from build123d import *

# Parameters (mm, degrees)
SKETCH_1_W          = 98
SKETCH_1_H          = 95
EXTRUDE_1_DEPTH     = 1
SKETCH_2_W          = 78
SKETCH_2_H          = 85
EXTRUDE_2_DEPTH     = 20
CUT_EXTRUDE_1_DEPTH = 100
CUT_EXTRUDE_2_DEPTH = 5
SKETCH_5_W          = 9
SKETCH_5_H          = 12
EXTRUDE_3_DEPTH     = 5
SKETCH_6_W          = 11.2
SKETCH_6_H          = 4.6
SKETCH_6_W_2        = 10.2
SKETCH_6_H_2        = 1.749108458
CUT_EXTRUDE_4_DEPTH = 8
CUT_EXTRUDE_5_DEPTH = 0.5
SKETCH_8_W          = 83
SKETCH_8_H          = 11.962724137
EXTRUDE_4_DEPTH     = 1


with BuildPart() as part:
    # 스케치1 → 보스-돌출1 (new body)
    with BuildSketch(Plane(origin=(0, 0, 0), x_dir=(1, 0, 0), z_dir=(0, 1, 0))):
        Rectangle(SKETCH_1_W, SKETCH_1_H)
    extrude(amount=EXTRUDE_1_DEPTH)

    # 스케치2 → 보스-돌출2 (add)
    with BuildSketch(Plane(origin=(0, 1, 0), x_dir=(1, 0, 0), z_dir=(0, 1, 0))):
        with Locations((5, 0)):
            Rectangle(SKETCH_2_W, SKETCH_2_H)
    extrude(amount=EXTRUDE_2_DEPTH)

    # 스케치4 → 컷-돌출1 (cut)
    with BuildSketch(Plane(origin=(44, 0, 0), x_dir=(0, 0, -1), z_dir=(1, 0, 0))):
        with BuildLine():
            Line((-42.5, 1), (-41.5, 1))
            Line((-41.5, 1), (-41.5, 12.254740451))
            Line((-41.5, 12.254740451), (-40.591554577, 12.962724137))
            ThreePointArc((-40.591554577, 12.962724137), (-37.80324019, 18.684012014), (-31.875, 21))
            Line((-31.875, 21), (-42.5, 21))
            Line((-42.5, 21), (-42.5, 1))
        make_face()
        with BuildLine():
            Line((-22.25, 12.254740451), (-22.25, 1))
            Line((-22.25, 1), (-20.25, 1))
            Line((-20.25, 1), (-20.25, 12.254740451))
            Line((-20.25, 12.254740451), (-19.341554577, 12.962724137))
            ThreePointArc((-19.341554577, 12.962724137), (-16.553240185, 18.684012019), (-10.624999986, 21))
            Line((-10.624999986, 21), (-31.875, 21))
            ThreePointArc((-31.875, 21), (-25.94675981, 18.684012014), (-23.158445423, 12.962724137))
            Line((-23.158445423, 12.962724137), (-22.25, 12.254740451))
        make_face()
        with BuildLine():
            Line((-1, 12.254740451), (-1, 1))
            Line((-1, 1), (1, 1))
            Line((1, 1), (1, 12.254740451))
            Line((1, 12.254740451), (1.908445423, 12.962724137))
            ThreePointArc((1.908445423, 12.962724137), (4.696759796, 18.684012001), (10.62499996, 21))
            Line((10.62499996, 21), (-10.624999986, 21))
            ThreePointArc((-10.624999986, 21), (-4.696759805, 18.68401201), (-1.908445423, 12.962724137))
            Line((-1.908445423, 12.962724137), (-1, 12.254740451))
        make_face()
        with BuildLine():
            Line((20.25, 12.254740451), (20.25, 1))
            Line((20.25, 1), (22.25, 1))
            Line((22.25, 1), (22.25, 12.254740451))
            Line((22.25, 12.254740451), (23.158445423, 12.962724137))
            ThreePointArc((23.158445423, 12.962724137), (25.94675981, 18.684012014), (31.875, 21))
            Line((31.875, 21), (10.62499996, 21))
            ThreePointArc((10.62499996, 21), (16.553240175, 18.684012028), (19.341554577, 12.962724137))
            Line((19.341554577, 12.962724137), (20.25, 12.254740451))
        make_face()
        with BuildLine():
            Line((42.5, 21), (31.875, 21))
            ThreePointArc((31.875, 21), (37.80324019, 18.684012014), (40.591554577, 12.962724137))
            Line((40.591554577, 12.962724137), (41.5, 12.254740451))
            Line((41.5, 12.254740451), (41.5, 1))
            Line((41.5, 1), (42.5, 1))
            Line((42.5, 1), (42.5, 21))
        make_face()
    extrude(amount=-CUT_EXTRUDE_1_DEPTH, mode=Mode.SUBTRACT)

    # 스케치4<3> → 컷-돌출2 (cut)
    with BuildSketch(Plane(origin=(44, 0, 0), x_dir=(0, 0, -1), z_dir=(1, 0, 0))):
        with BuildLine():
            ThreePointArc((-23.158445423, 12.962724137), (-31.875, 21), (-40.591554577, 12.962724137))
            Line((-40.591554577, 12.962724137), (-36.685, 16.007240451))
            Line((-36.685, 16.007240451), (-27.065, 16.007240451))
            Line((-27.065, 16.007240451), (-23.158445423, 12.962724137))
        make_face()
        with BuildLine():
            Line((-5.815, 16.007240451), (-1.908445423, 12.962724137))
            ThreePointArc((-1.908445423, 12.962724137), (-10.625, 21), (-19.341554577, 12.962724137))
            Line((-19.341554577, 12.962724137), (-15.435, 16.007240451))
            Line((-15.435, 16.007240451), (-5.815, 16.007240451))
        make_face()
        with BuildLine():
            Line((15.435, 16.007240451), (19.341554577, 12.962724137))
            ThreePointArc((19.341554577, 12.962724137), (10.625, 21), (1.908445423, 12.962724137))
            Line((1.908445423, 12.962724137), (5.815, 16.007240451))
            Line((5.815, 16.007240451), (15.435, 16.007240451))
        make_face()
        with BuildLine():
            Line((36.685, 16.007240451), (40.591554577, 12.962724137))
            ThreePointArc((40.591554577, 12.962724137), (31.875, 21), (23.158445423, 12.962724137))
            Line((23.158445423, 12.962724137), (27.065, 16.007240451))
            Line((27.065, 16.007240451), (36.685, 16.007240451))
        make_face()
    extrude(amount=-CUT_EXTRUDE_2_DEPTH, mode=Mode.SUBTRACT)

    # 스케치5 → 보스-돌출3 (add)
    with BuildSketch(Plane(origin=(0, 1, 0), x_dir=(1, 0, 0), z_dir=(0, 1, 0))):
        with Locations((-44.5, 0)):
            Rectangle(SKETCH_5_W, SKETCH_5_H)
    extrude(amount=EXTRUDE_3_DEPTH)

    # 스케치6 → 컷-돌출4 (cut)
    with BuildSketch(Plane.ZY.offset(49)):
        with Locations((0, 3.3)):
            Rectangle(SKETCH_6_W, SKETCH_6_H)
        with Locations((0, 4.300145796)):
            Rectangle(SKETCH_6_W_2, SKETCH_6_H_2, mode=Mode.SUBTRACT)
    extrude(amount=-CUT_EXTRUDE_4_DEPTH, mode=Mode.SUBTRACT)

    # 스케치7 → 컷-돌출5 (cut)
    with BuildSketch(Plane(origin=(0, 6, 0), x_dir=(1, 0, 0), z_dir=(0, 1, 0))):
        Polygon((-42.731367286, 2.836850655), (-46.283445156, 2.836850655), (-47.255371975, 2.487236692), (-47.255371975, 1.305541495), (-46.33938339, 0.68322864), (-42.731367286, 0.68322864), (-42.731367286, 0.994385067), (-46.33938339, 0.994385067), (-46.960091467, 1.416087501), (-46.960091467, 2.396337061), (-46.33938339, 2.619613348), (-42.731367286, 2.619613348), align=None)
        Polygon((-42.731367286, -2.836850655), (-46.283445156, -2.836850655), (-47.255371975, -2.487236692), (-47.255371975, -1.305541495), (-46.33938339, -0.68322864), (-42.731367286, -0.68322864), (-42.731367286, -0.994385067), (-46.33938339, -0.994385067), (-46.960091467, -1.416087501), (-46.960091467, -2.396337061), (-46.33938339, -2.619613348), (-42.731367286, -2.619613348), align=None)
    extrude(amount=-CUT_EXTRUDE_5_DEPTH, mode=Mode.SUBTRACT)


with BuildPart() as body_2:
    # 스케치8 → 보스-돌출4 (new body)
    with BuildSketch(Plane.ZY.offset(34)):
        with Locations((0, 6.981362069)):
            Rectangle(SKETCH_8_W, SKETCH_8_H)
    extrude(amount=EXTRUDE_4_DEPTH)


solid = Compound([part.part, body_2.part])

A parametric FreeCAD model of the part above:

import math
import FreeCAD as App
import Part
import Sketcher
from FreeCAD import Vector
Q = App.Units.Quantity

doc = App.newDocument("Part")
body = doc.addObject("PartDesign::Body", "Body")

# Sketch on XZ plane
sketch1 = body.newObject("Sketcher::SketchObject", "Sketch")
sketch1.AttachmentSupport = (doc.getObject("XZ_Plane"), [""])
sketch1.MapMode = "FlatFace"
sketch1.addGeometry([
    Part.LineSegment(Vector(-49, -48, 0), Vector(-49, 48, 0)),
    Part.LineSegment(Vector(-49, 48, 0), Vector(49, 48, 0)),
    Part.LineSegment(Vector(49, 48, 0), Vector(49, -48, 0)),
    Part.LineSegment(Vector(49, -48, 0), Vector(-49, -48, 0)),
], False)
sketch1.addConstraint([
    Sketcher.Constraint("Coincident", 0, 2, 1, 1),
    Sketcher.Constraint("Coincident", 1, 2, 2, 1),
    Sketcher.Constraint("Coincident", 2, 2, 3, 1),
    Sketcher.Constraint("Coincident", 3, 2, 0, 1),
    Sketcher.Constraint("Vertical", 0),
    Sketcher.Constraint("Horizontal", 1),
    Sketcher.Constraint("Vertical", 2),
    Sketcher.Constraint("Horizontal", 3),
    Sketcher.Constraint("Symmetric", 0, 2, 2, 2, -1, 1),
    Sketcher.Constraint("DistanceX", 1, 1, 1, 2, Q("98 mm")),
    Sketcher.Constraint("DistanceY", 0, 1, 0, 2, Q("95 mm")),
])
pad1 = body.newObject("PartDesign::Pad", "Pad")
pad1.Profile = sketch1
pad1.Length = 1
pad1.Reversed = True

# Sketch on XZ plane
sketch2 = body.newObject("Sketcher::SketchObject", "Sketch001")
sketch2.AttachmentSupport = (doc.getObject("XZ_Plane"), [""])
sketch2.MapMode = "FlatFace"
sketch2.AttachmentOffset = App.Placement(Vector(0, 0, -1), App.Rotation())
sketch2.addGeometry([
    Part.LineSegment(Vector(-34, -42, 0), Vector(-34, 42, 0)),
    Part.LineSegment(Vector(-34, 42, 0), Vector(44, 42, 0)),
    Part.LineSegment(Vector(44, 42, 0), Vector(44, -42, 0)),
    Part.LineSegment(Vector(44, -42, 0), Vector(-34, -42, 0)),
], False)
sketch2.addConstraint([
    Sketcher.Constraint("Coincident", 0, 2, 1, 1),
    Sketcher.Constraint("Coincident", 1, 2, 2, 1),
    Sketcher.Constraint("Coincident", 2, 2, 3, 1),
    Sketcher.Constraint("Coincident", 3, 2, 0, 1),
    Sketcher.Constraint("Vertical", 0),
    Sketcher.Constraint("Horizontal", 1),
    Sketcher.Constraint("Vertical", 2),
    Sketcher.Constraint("Horizontal", 3),
    Sketcher.Constraint("DistanceX", 1, 1, 1, 2, Q("78 mm")),
    Sketcher.Constraint("DistanceY", 0, 1, 0, 2, Q("85 mm")),
    Sketcher.Constraint("DistanceX", 0, 2, -1, 1, Q("34 mm")),
    Sketcher.Constraint("DistanceY", -1, 1, 0, 2, Q("42.5 mm")),
])
pad2 = body.newObject("PartDesign::Pad", "Pad001")
pad2.Profile = sketch2
pad2.Length = 20
pad2.Reversed = True

# Sketch on YZ plane
sketch3 = body.newObject("Sketcher::SketchObject", "Sketch002")
sketch3.AttachmentSupport = (doc.getObject("YZ_Plane"), [""])
sketch3.MapMode = "FlatFace"
sketch3.AttachmentOffset = App.Placement(Vector(0, 0, 44), App.Rotation())
sketch3.addGeometry([
    Part.LineSegment(Vector(1, 42.5, 0), Vector(1, 41.5, 0)),  # 0
    Part.LineSegment(Vector(1, 41.5, 0), Vector(12.3, 41.5, 0)),  # 1
    Part.LineSegment(Vector(12.3, 41.5, 0), Vector(13, 40.6, 0)),  # 2
    Part.ArcOfCircle(Part.Circle(Vector(12.3, 31.9, 0), Vector(0, 0, 1), 8.7), math.radians(0), math.radians(85)),  # 3
    Part.LineSegment(Vector(21, 31.9, 0), Vector(21, 42.5, 0)),  # 4
    Part.LineSegment(Vector(21, 42.5, 0), Vector(1, 42.5, 0)),  # 5
    Part.LineSegment(Vector(12.3, 22.2, 0), Vector(1, 22.2, 0)),  # 6
    Part.LineSegment(Vector(1, 22.2, 0), Vector(1, 20.2, 0)),  # 7
    Part.LineSegment(Vector(1, 20.2, 0), Vector(12.3, 20.2, 0)),  # 8
    Part.LineSegment(Vector(12.3, 20.2, 0), Vector(13, 19.3, 0)),  # 9
    Part.ArcOfCircle(Part.Circle(Vector(12.3, 10.6, 0), Vector(0, 0, 1), 8.7), math.radians(0), math.radians(85)),  # 10
    Part.LineSegment(Vector(21, 10.6, 0), Vector(21, 31.9, 0)),  # 11
    Part.ArcOfCircle(Part.Circle(Vector(12.3, 31.9, 0), Vector(0, 0, 1), 8.7), math.radians(-85), math.radians(0)),  # 12
    Part.LineSegment(Vector(13, 23.2, 0), Vector(12.3, 22.2, 0)),  # 13
    Part.LineSegment(Vector(12.3, 1, 0), Vector(1, 1, 0)),  # 14
    Part.LineSegment(Vector(1, 1, 0), Vector(1, -1, 0)),  # 15
    Part.LineSegment(Vector(1, -1, 0), Vector(12.3, -1, 0)),  # 16
    Part.LineSegment(Vector(12.3, -1, 0), Vector(13, -1.9, 0)),  # 17
    Part.ArcOfCircle(Part.Circle(Vector(12.3, -10.6, 0), Vector(0, 0, 1), 8.7), math.radians(0), math.radians(85)),  # 18
    Part.LineSegment(Vector(21, -10.6, 0), Vector(21, 10.6, 0)),  # 19
    Part.ArcOfCircle(Part.Circle(Vector(12.3, 10.6, 0), Vector(0, 0, 1), 8.7), math.radians(-85), math.radians(0)),  # 20
    Part.LineSegment(Vector(13, 1.9, 0), Vector(12.3, 1, 0)),  # 21
    Part.LineSegment(Vector(12.3, -20.2, 0), Vector(1, -20.2, 0)),  # 22
    Part.LineSegment(Vector(1, -20.2, 0), Vector(1, -22.2, 0)),  # 23
    Part.LineSegment(Vector(1, -22.2, 0), Vector(12.3, -22.2, 0)),  # 24
    Part.LineSegment(Vector(12.3, -22.2, 0), Vector(13, -23.2, 0)),  # 25
    Part.ArcOfCircle(Part.Circle(Vector(12.3, -31.9, 0), Vector(0, 0, 1), 8.7), math.radians(0), math.radians(85)),  # 26
    Part.LineSegment(Vector(21, -31.9, 0), Vector(21, -10.6, 0)),  # 27
    Part.ArcOfCircle(Part.Circle(Vector(12.3, -10.6, 0), Vector(0, 0, 1), 8.7), math.radians(-85), math.radians(0)),  # 28
    Part.LineSegment(Vector(13, -19.3, 0), Vector(12.3, -20.2, 0)),  # 29
    Part.LineSegment(Vector(21, -42.5, 0), Vector(21, -31.9, 0)),  # 30
    Part.ArcOfCircle(Part.Circle(Vector(12.3, -31.9, 0), Vector(0, 0, 1), 8.7), math.radians(-85), math.radians(0)),  # 31
    Part.LineSegment(Vector(13, -40.6, 0), Vector(12.3, -41.5, 0)),  # 32
    Part.LineSegment(Vector(12.3, -41.5, 0), Vector(1, -41.5, 0)),  # 33
    Part.LineSegment(Vector(1, -41.5, 0), Vector(1, -42.5, 0)),  # 34
    Part.LineSegment(Vector(1, -42.5, 0), Vector(21, -42.5, 0)),  # 35
], False)
sketch3.addConstraint([
    Sketcher.Constraint("Coincident", 0, 2, 1, 1),
    Sketcher.Constraint("Coincident", 1, 2, 2, 1),
    Sketcher.Constraint("Coincident", 2, 2, 3, 2),
    Sketcher.Constraint("Tangent", 3, 1, 4, 1),
    Sketcher.Constraint("Coincident", 4, 2, 5, 1),
    Sketcher.Constraint("Coincident", 5, 2, 0, 1),
    Sketcher.Constraint("Coincident", 6, 2, 7, 1),
    Sketcher.Constraint("Coincident", 7, 2, 8, 1),
    Sketcher.Constraint("Coincident", 8, 2, 9, 1),
    Sketcher.Constraint("Coincident", 9, 2, 10, 2),
    Sketcher.Constraint("Tangent", 10, 1, 11, 1),
    Sketcher.Constraint("Tangent", 11, 2, 12, 2),
    Sketcher.Constraint("Coincident", 12, 1, 13, 1),
    Sketcher.Constraint("Coincident", 13, 2, 6, 1),
    Sketcher.Constraint("Coincident", 14, 2, 15, 1),
    Sketcher.Constraint("Coincident", 15, 2, 16, 1),
    Sketcher.Constraint("Coincident", 16, 2, 17, 1),
    Sketcher.Constraint("Coincident", 17, 2, 18, 2),
    Sketcher.Constraint("Tangent", 18, 1, 19, 1),
    Sketcher.Constraint("Tangent", 19, 2, 20, 2),
    Sketcher.Constraint("Coincident", 20, 1, 21, 1),
    Sketcher.Constraint("Coincident", 21, 2, 14, 1),
    Sketcher.Constraint("Coincident", 22, 2, 23, 1),
    Sketcher.Constraint("Coincident", 23, 2, 24, 1),
    Sketcher.Constraint("Coincident", 24, 2, 25, 1),
    Sketcher.Constraint("Coincident", 25, 2, 26, 2),
    Sketcher.Constraint("Tangent", 26, 1, 27, 1),
    Sketcher.Constraint("Tangent", 27, 2, 28, 2),
    Sketcher.Constraint("Coincident", 28, 1, 29, 1),
    Sketcher.Constraint("Coincident", 29, 2, 22, 1),
    Sketcher.Constraint("Tangent", 30, 2, 31, 2),
    Sketcher.Constraint("Coincident", 31, 1, 32, 1),
    Sketcher.Constraint("Coincident", 32, 2, 33, 1),
    Sketcher.Constraint("Coincident", 33, 2, 34, 1),
    Sketcher.Constraint("Coincident", 34, 2, 35, 1),
    Sketcher.Constraint("Coincident", 35, 2, 30, 1),
    Sketcher.Constraint("Vertical", 0),
    Sketcher.Constraint("Horizontal", 1),
    Sketcher.Constraint("Vertical", 4),
    Sketcher.Constraint("Horizontal", 5),
    Sketcher.Constraint("Horizontal", 6),
    Sketcher.Constraint("Vertical", 7),
    Sketcher.Constraint("Horizontal", 8),
    Sketcher.Constraint("Vertical", 11),
    Sketcher.Constraint("Horizontal", 14),
    Sketcher.Constraint("Vertical", 15),
    Sketcher.Constraint("Horizontal", 16),
    Sketcher.Constraint("Vertical", 19),
    Sketcher.Constraint("Horizontal", 22),
    Sketcher.Constraint("Vertical", 23),
    Sketcher.Constraint("Horizontal", 24),
    Sketcher.Constraint("Vertical", 27),
    Sketcher.Constraint("Vertical", 30),
    Sketcher.Constraint("Horizontal", 33),
    Sketcher.Constraint("Vertical", 34),
    Sketcher.Constraint("Horizontal", 35),
    Sketcher.Constraint("Coincident", 12, 3, 3, 3),
    Sketcher.Constraint("Coincident", 20, 3, 10, 3),
    Sketcher.Constraint("Coincident", 28, 3, 18, 3),
    Sketcher.Constraint("Coincident", 31, 3, 26, 3),
    Sketcher.Constraint("Equal", 3, 10),
    Sketcher.Constraint("Equal", 10, 12),
    Sketcher.Constraint("Equal", 12, 18),
    Sketcher.Constraint("Equal", 18, 20),
    Sketcher.Constraint("Equal", 20, 26),
    Sketcher.Constraint("Equal", 26, 28),
    Sketcher.Constraint("Equal", 28, 31),
    Sketcher.Constraint("Symmetric", 17, 2, 20, 1, -1),
    Sketcher.Constraint("Symmetric", 16, 2, 21, 2, -1),
    Sketcher.Constraint("Symmetric", 7, 2, 22, 2, -1),
    Sketcher.Constraint("Symmetric", 13, 2, 24, 2, -1),
    Sketcher.Constraint("Symmetric", 12, 1, 25, 2, -1),
    Sketcher.Constraint("Symmetric", 1, 2, 32, 2, -1),
    Sketcher.Constraint("Symmetric", 5, 2, 34, 2, -1),
    Sketcher.Constraint("Parallel", 2, 9),
    Sketcher.Constraint("Parallel", 9, 17),
    Sketcher.Constraint("Parallel", 13, 21),
    Sketcher.Constraint("Parallel", 21, 29),
    Sketcher.Constraint("Parallel", 29, 32),
    Sketcher.Constraint("Vertical", 31, 3, 1, 2),
    Sketcher.Constraint("Vertical", 5, 2, 6, 2),
    Sketcher.Constraint("Vertical", 1, 2, 8, 2),
    Sketcher.Constraint("Vertical", 2, 2, 9, 2),
    Sketcher.Constraint("Vertical", 9, 2, 12, 1),
    Sketcher.Constraint("Vertical", 8, 2, 13, 2),
    Sketcher.Constraint("Vertical", 7, 2, 14, 2),
    Sketcher.Constraint("Vertical", 13, 2, 16, 2),
    Sketcher.Constraint("Vertical", 12, 1, 17, 2),
    Sketcher.Constraint("Vertical", 25, 2, 28, 1),
    Sketcher.Constraint("Equal", 7, 15),
    Sketcher.Constraint("DistanceX", 5, 2, 5, 1, Q("20 mm")),
    Sketcher.Constraint("DistanceY", 0, 2, 0, 1, Q("1 mm")),
    Sketcher.Constraint("DistanceY", 7, 2, 7, 1, Q("2 mm")),
    Sketcher.Constraint("DistanceX", -1, 1, 0, 2, Q("1 mm")),
    Sketcher.Constraint("DistanceY", 11, 1, 11, 2, Q("21.25 mm")),
    Sketcher.Constraint("Radius", 3, Q("8.74526 mm")),
    Sketcher.Constraint("DistanceY", 9, 2, 12, 1, Q("3.816891 mm")),
])
pocket1 = body.newObject("PartDesign::Pocket", "Pocket")
pocket1.Profile = sketch3
pocket1.Length = 100

# Sketch on YZ plane
sketch4 = body.newObject("Sketcher::SketchObject", "Sketch003")
sketch4.AttachmentSupport = (doc.getObject("YZ_Plane"), [""])
sketch4.MapMode = "FlatFace"
sketch4.AttachmentOffset = App.Placement(Vector(0, 0, 44), App.Rotation())
sketch4.addGeometry([
    Part.ArcOfCircle(Part.Circle(Vector(12.3, 31.9, 0), Vector(0, 0, 1), 8.7), math.radians(-85), math.radians(85)),  # 0
    Part.LineSegment(Vector(13, 40.6, 0), Vector(16, 36.7, 0)),  # 1
    Part.LineSegment(Vector(16, 36.7, 0), Vector(16, 27.1, 0)),  # 2
    Part.LineSegment(Vector(16, 27.1, 0), Vector(13, 23.2, 0)),  # 3
    Part.LineSegment(Vector(16, 5.8, 0), Vector(13, 1.9, 0)),  # 4
    Part.ArcOfCircle(Part.Circle(Vector(12.3, 10.6, 0), Vector(0, 0, 1), 8.7), math.radians(-85), math.radians(85)),  # 5
    Part.LineSegment(Vector(13, 19.3, 0), Vector(16, 15.4, 0)),  # 6
    Part.LineSegment(Vector(16, 15.4, 0), Vector(16, 5.8, 0)),  # 7
    Part.LineSegment(Vector(16, -15.4, 0), Vector(13, -19.3, 0)),  # 8
    Part.ArcOfCircle(Part.Circle(Vector(12.3, -10.6, 0), Vector(0, 0, 1), 8.7), math.radians(-85), math.radians(85)),  # 9
    Part.LineSegment(Vector(13, -1.9, 0), Vector(16, -5.8, 0)),  # 10
    Part.LineSegment(Vector(16, -5.8, 0), Vector(16, -15.4, 0)),  # 11
    Part.LineSegment(Vector(16, -36.7, 0), Vector(13, -40.6, 0)),  # 12
    Part.ArcOfCircle(Part.Circle(Vector(12.3, -31.9, 0), Vector(0, 0, 1), 8.7), math.radians(-85), math.radians(85)),  # 13
    Part.LineSegment(Vector(13, -23.2, 0), Vector(16, -27.1, 0)),  # 14
    Part.LineSegment(Vector(16, -27.1, 0), Vector(16, -36.7, 0)),  # 15
], False)
sketch4.addConstraint([
    Sketcher.Constraint("Coincident", 0, 2, 1, 1),
    Sketcher.Constraint("Coincident", 1, 2, 2, 1),
    Sketcher.Constraint("Coincident", 2, 2, 3, 1),
    Sketcher.Constraint("Coincident", 3, 2, 0, 1),
    Sketcher.Constraint("Coincident", 4, 2, 5, 1),
    Sketcher.Constraint("Coincident", 5, 2, 6, 1),
    Sketcher.Constraint("Coincident", 6, 2, 7, 1),
    Sketcher.Constraint("Coincident", 7, 2, 4, 1),
    Sketcher.Constraint("Coincident", 8, 2, 9, 1),
    Sketcher.Constraint("Coincident", 9, 2, 10, 1),
    Sketcher.Constraint("Coincident", 10, 2, 11, 1),
    Sketcher.Constraint("Coincident", 11, 2, 8, 1),
    Sketcher.Constraint("Coincident", 12, 2, 13, 1),
    Sketcher.Constraint("Coincident", 13, 2, 14, 1),
    Sketcher.Constraint("Coincident", 14, 2, 15, 1),
    Sketcher.Constraint("Coincident", 15, 2, 12, 1),
    Sketcher.Constraint("Vertical", 2),
    Sketcher.Constraint("Vertical", 7),
    Sketcher.Constraint("Vertical", 11),
    Sketcher.Constraint("Vertical", 15),
    Sketcher.Constraint("Equal", 0, 5),
    Sketcher.Constraint("Equal", 5, 9),
    Sketcher.Constraint("Equal", 9, 13),
    Sketcher.Constraint("Symmetric", 5, 3, 9, 3, -1),
    Sketcher.Constraint("Symmetric", 0, 3, 13, 3, -1),
    Sketcher.Constraint("Symmetric", 7, 2, 10, 2, -1),
    Sketcher.Constraint("Symmetric", 2, 2, 14, 2, -1),
    Sketcher.Constraint("Parallel", 3, 4),
    Sketcher.Constraint("Parallel", 1, 6),
    Sketcher.Constraint("Parallel", 4, 8),
    Sketcher.Constraint("Parallel", 6, 10),
    Sketcher.Constraint("Parallel", 8, 12),
    Sketcher.Constraint("Parallel", 10, 14),
    Sketcher.Constraint("Vertical", 0, 3, 5, 3),
    Sketcher.Constraint("Vertical", 0, 2, 3, 2),
    Sketcher.Constraint("Vertical", 3, 2, 4, 2),
    Sketcher.Constraint("Vertical", 4, 2, 5, 2),
    Sketcher.Constraint("Vertical", 2, 2, 6, 2),
    Sketcher.Constraint("Vertical", 5, 2, 8, 2),
    Sketcher.Constraint("Vertical", 8, 2, 9, 2),
    Sketcher.Constraint("Vertical", 9, 2, 12, 2),
    Sketcher.Constraint("DistanceY", 2, 2, 2, 1, Q("9.62 mm")),
    Sketcher.Constraint("DistanceY", 9, 3, 0, 3, Q("42.5 mm")),
    Sketcher.Constraint("Radius", 0, Q("8.74526 mm")),
    Sketcher.Constraint("DistanceY", 5, 3, 0, 3, Q("21.25 mm")),
    Sketcher.Constraint("DistanceX", 0, 3, 1, 2, Q("3.7525 mm")),
    Sketcher.Constraint("DistanceX", -1, 1, 0, 3, Q("12.25474 mm")),
    Sketcher.Constraint("DistanceY", 3, 2, 0, 2, Q("17.433109 mm")),
])
pocket2 = body.newObject("PartDesign::Pocket", "Pocket001")
pocket2.Profile = sketch4
pocket2.Length = 5

# Sketch on XZ plane
sketch5 = body.newObject("Sketcher::SketchObject", "Sketch004")
sketch5.AttachmentSupport = (doc.getObject("XZ_Plane"), [""])
sketch5.MapMode = "FlatFace"
sketch5.AttachmentOffset = App.Placement(Vector(0, 0, -1), App.Rotation())
sketch5.addGeometry([
    Part.LineSegment(Vector(-49, -6, 0), Vector(-49, 6, 0)),
    Part.LineSegment(Vector(-49, 6, 0), Vector(-40, 6, 0)),
    Part.LineSegment(Vector(-40, 6, 0), Vector(-40, -6, 0)),
    Part.LineSegment(Vector(-40, -6, 0), Vector(-49, -6, 0)),
], False)
sketch5.addConstraint([
    Sketcher.Constraint("Coincident", 0, 2, 1, 1),
    Sketcher.Constraint("Coincident", 1, 2, 2, 1),
    Sketcher.Constraint("Coincident", 2, 2, 3, 1),
    Sketcher.Constraint("Coincident", 3, 2, 0, 1),
    Sketcher.Constraint("Vertical", 0),
    Sketcher.Constraint("Horizontal", 1),
    Sketcher.Constraint("Vertical", 2),
    Sketcher.Constraint("Horizontal", 3),
    Sketcher.Constraint("DistanceX", 1, 1, 1, 2, Q("9 mm")),
    Sketcher.Constraint("DistanceY", 0, 1, 0, 2, Q("12 mm")),
    Sketcher.Constraint("DistanceX", 0, 2, -1, 1, Q("49 mm")),
    Sketcher.Constraint("DistanceY", -1, 1, 0, 2, Q("6 mm")),
])
pad3 = body.newObject("PartDesign::Pad", "Pad002")
pad3.Profile = sketch5
pad3.Length = 5
pad3.Reversed = True

# Sketch on YZ plane
sketch6 = body.newObject("Sketcher::SketchObject", "Sketch005")
sketch6.AttachmentSupport = (doc.getObject("YZ_Plane"), [""])
sketch6.MapMode = "FlatFace"
sketch6.AttachmentOffset = App.Placement(Vector(0, 0, -49), App.Rotation())
sketch6.addGeometry([
    Part.LineSegment(Vector(5.6, -5.6, 0), Vector(1, -5.6, 0)),  # 0
    Part.LineSegment(Vector(1, -5.6, 0), Vector(1, 5.6, 0)),  # 1
    Part.LineSegment(Vector(1, 5.6, 0), Vector(5.6, 5.6, 0)),  # 2
    Part.LineSegment(Vector(5.6, 5.6, 0), Vector(5.6, -5.6, 0)),  # 3
    Part.LineSegment(Vector(3.4, 5.1, 0), Vector(3.4, -5.1, 0)),  # 4
    Part.LineSegment(Vector(3.4, -5.1, 0), Vector(5.2, -5.1, 0)),  # 5
    Part.LineSegment(Vector(5.2, -5.1, 0), Vector(5.2, 5.1, 0)),  # 6
    Part.LineSegment(Vector(5.2, 5.1, 0), Vector(3.4, 5.1, 0)),  # 7
], False)
sketch6.addConstraint([
    Sketcher.Constraint("Coincident", 0, 2, 1, 1),
    Sketcher.Constraint("Coincident", 1, 2, 2, 1),
    Sketcher.Constraint("Coincident", 2, 2, 3, 1),
    Sketcher.Constraint("Coincident", 3, 2, 0, 1),
    Sketcher.Constraint("Coincident", 4, 2, 5, 1),
    Sketcher.Constraint("Coincident", 5, 2, 6, 1),
    Sketcher.Constraint("Coincident", 6, 2, 7, 1),
    Sketcher.Constraint("Coincident", 7, 2, 4, 1),
    Sketcher.Constraint("Horizontal", 0),
    Sketcher.Constraint("Vertical", 1),
    Sketcher.Constraint("Horizontal", 2),
    Sketcher.Constraint("Vertical", 3),
    Sketcher.Constraint("Vertical", 4),
    Sketcher.Constraint("Horizontal", 5),
    Sketcher.Constraint("Vertical", 6),
    Sketcher.Constraint("Horizontal", 7),
    Sketcher.Constraint("DistanceX", 0, 2, 0, 1, Q("4.6 mm")),
    Sketcher.Constraint("DistanceY", 1, 1, 1, 2, Q("11.2 mm")),
    Sketcher.Constraint("DistanceY", 4, 2, 4, 1, Q("10.2 mm")),
    Sketcher.Constraint("DistanceX", -1, 1, 0, 2, Q("1 mm")),
    Sketcher.Constraint("DistanceY", 0, 2, -1, 1, Q("5.6 mm")),
    Sketcher.Constraint("DistanceY", 4, 2, -1, 1, Q("5.1 mm")),
    Sketcher.Constraint("DistanceX", 5, 1, 5, 2, Q("1.749108 mm")),
    Sketcher.Constraint("DistanceX", -1, 1, 5, 2, Q("5.1747 mm")),
])
pocket3 = body.newObject("PartDesign::Pocket", "Pocket002")
pocket3.Profile = sketch6
pocket3.Length = 8
pocket3.Reversed = True

# Sketch on XZ plane
sketch7 = body.newObject("Sketcher::SketchObject", "Sketch006")
sketch7.AttachmentSupport = (doc.getObject("XZ_Plane"), [""])
sketch7.MapMode = "FlatFace"
sketch7.AttachmentOffset = App.Placement(Vector(0, 0, -6), App.Rotation())
sketch7.addGeometry([
    Part.LineSegment(Vector(-42.73, -2.84, 0), Vector(-46.28, -2.84, 0)),  # 0
    Part.LineSegment(Vector(-46.28, -2.84, 0), Vector(-47.26, -2.49, 0)),  # 1
    Part.LineSegment(Vector(-47.26, -2.49, 0), Vector(-47.26, -1.31, 0)),  # 2
    Part.LineSegment(Vector(-47.26, -1.31, 0), Vector(-46.34, -0.68, 0)),  # 3
    Part.LineSegment(Vector(-46.34, -0.68, 0), Vector(-42.73, -0.68, 0)),  # 4
    Part.LineSegment(Vector(-42.73, -0.68, 0), Vector(-42.73, -0.99, 0)),  # 5
    Part.LineSegment(Vector(-42.73, -0.99, 0), Vector(-46.34, -0.99, 0)),  # 6
    Part.LineSegment(Vector(-46.34, -0.99, 0), Vector(-46.96, -1.42, 0)),  # 7
    Part.LineSegment(Vector(-46.96, -1.42, 0), Vector(-46.96, -2.4, 0)),  # 8
    Part.LineSegment(Vector(-46.96, -2.4, 0), Vector(-46.34, -2.62, 0)),  # 9
    Part.LineSegment(Vector(-46.34, -2.62, 0), Vector(-42.73, -2.62, 0)),  # 10
    Part.LineSegment(Vector(-42.73, -2.62, 0), Vector(-42.73, -2.84, 0)),  # 11
    Part.LineSegment(Vector(-46.28, 2.84, 0), Vector(-42.73, 2.84, 0)),  # 12
    Part.LineSegment(Vector(-42.73, 2.84, 0), Vector(-42.73, 2.62, 0)),  # 13
    Part.LineSegment(Vector(-42.73, 2.62, 0), Vector(-46.34, 2.62, 0)),  # 14
    Part.LineSegment(Vector(-46.34, 2.62, 0), Vector(-46.96, 2.4, 0)),  # 15
    Part.LineSegment(Vector(-46.96, 2.4, 0), Vector(-46.96, 1.42, 0)),  # 16
    Part.LineSegment(Vector(-46.96, 1.42, 0), Vector(-46.34, 0.99, 0)),  # 17
    Part.LineSegment(Vector(-46.34, 0.99, 0), Vector(-42.73, 0.99, 0)),  # 18
    Part.LineSegment(Vector(-42.73, 0.99, 0), Vector(-42.73, 0.68, 0)),  # 19
    Part.LineSegment(Vector(-42.73, 0.68, 0), Vector(-46.34, 0.68, 0)),  # 20
    Part.LineSegment(Vector(-46.34, 0.68, 0), Vector(-47.26, 1.31, 0)),  # 21
    Part.LineSegment(Vector(-47.26, 1.31, 0), Vector(-47.26, 2.49, 0)),  # 22
    Part.LineSegment(Vector(-47.26, 2.49, 0), Vector(-46.28, 2.84, 0)),  # 23
], False)
sketch7.addConstraint([
    Sketcher.Constraint("Coincident", 0, 2, 1, 1),
    Sketcher.Constraint("Coincident", 1, 2, 2, 1),
    Sketcher.Constraint("Coincident", 2, 2, 3, 1),
    Sketcher.Constraint("Coincident", 3, 2, 4, 1),
    Sketcher.Constraint("Coincident", 4, 2, 5, 1),
    Sketcher.Constraint("Coincident", 5, 2, 6, 1),
    Sketcher.Constraint("Coincident", 6, 2, 7, 1),
    Sketcher.Constraint("Coincident", 7, 2, 8, 1),
    Sketcher.Constraint("Coincident", 8, 2, 9, 1),
    Sketcher.Constraint("Coincident", 9, 2, 10, 1),
    Sketcher.Constraint("Coincident", 10, 2, 11, 1),
    Sketcher.Constraint("Coincident", 11, 2, 0, 1),
    Sketcher.Constraint("Coincident", 12, 2, 13, 1),
    Sketcher.Constraint("Coincident", 13, 2, 14, 1),
    Sketcher.Constraint("Coincident", 14, 2, 15, 1),
    Sketcher.Constraint("Coincident", 15, 2, 16, 1),
    Sketcher.Constraint("Coincident", 16, 2, 17, 1),
    Sketcher.Constraint("Coincident", 17, 2, 18, 1),
    Sketcher.Constraint("Coincident", 18, 2, 19, 1),
    Sketcher.Constraint("Coincident", 19, 2, 20, 1),
    Sketcher.Constraint("Coincident", 20, 2, 21, 1),
    Sketcher.Constraint("Coincident", 21, 2, 22, 1),
    Sketcher.Constraint("Coincident", 22, 2, 23, 1),
    Sketcher.Constraint("Coincident", 23, 2, 12, 1),
    Sketcher.Constraint("Horizontal", 0),
    Sketcher.Constraint("Vertical", 2),
    Sketcher.Constraint("Horizontal", 4),
    Sketcher.Constraint("Vertical", 5),
    Sketcher.Constraint("Horizontal", 6),
    Sketcher.Constraint("Vertical", 8),
    Sketcher.Constraint("Horizontal", 10),
    Sketcher.Constraint("Vertical", 11),
    Sketcher.Constraint("Horizontal", 12),
    Sketcher.Constraint("Vertical", 13),
    Sketcher.Constraint("Horizontal", 14),
    Sketcher.Constraint("Vertical", 16),
    Sketcher.Constraint("Horizontal", 18),
    Sketcher.Constraint("Vertical", 19),
    Sketcher.Constraint("Horizontal", 20),
    Sketcher.Constraint("Vertical", 22),
    Sketcher.Constraint("Symmetric", 11, 2, 12, 2, -1),
    Sketcher.Constraint("Symmetric", 9, 2, 14, 2, -1),
    Sketcher.Constraint("Symmetric", 8, 2, 15, 2, -1),
    Sketcher.Constraint("Symmetric", 6, 2, 17, 2, -1),
    Sketcher.Constraint("Symmetric", 4, 2, 19, 2, -1),
    Sketcher.Constraint("Symmetric", 2, 2, 21, 2, -1),
    Sketcher.Constraint("Parallel", 3, 7),
    Sketcher.Constraint("Parallel", 1, 9),
    Sketcher.Constraint("Parallel", 17, 21),
    Sketcher.Constraint("Parallel", 15, 23),
    Sketcher.Constraint("Vertical", 3, 2, 6, 2),
    Sketcher.Constraint("Vertical", 6, 2, 9, 2),
    Sketcher.Constraint("Vertical", 5, 2, 10, 2),
    Sketcher.Constraint("Vertical", 17, 2, 20, 2),
    Sketcher.Constraint("Vertical", 0, 2, 23, 2),
    Sketcher.Constraint("DistanceY", 5, 2, 13, 2, Q("3.613998 mm")),
    Sketcher.Constraint("DistanceY", 8, 2, 8, 1, Q("0.98025 mm")),
    Sketcher.Constraint("DistanceY", 1, 2, 8, 2, Q("0.0909 mm")),
    Sketcher.Constraint("Distance", 3, Q("1.107388 mm")),
    Sketcher.Constraint("DistanceX", 0, 2, 0, 1, Q("3.552078 mm")),
    Sketcher.Constraint("DistanceX", 4, 1, 4, 2, Q("3.608016 mm")),
    Sketcher.Constraint("DistanceY", 2, 1, 2, 2, Q("1.181695 mm")),
    Sketcher.Constraint("DistanceY", 5, 2, 5, 1, Q("0.311156 mm")),
    Sketcher.Constraint("DistanceY", 11, 2, 11, 1, Q("0.217237 mm")),
    Sketcher.Constraint("DistanceY", 0, 2, -1, 1, Q("2.836851 mm")),
    Sketcher.Constraint("DistanceX", 1, 2, -1, 1, Q("47.255372 mm")),
])
pocket4 = body.newObject("PartDesign::Pocket", "Pocket003")
pocket4.Profile = sketch7
pocket4.Length = 0.5
pocket4.Reversed = True
body2 = doc.addObject("PartDesign::Body", "Body001")

# Sketch on YZ plane
sketch8 = body2.newObject("Sketcher::SketchObject", "Sketch007")
sketch8.AttachmentSupport = (doc.getObject("YZ_Plane001"), [""])
sketch8.MapMode = "FlatFace"
sketch8.AttachmentOffset = App.Placement(Vector(0, 0, -34), App.Rotation())
sketch8.addGeometry([
    Part.LineSegment(Vector(13, -42, 0), Vector(1, -42, 0)),
    Part.LineSegment(Vector(1, -42, 0), Vector(1, 42, 0)),
    Part.LineSegment(Vector(1, 42, 0), Vector(13, 42, 0)),
    Part.LineSegment(Vector(13, 42, 0), Vector(13, -42, 0)),
], False)
sketch8.addConstraint([
    Sketcher.Constraint("Coincident", 0, 2, 1, 1),
    Sketcher.Constraint("Coincident", 1, 2, 2, 1),
    Sketcher.Constraint("Coincident", 2, 2, 3, 1),
    Sketcher.Constraint("Coincident", 3, 2, 0, 1),
    Sketcher.Constraint("Horizontal", 0),
    Sketcher.Constraint("Vertical", 1),
    Sketcher.Constraint("Horizontal", 2),
    Sketcher.Constraint("Vertical", 3),
    Sketcher.Constraint("DistanceY", 1, 1, 1, 2, Q("83 mm")),
    Sketcher.Constraint("DistanceX", -1, 1, 0, 2, Q("1 mm")),
    Sketcher.Constraint("DistanceY", 0, 2, -1, 1, Q("41.5 mm")),
    Sketcher.Constraint("DistanceX", 0, 2, 0, 1, Q("11.962724 mm")),
])
pad4 = body2.newObject("PartDesign::Pad", "Pad003")
pad4.Profile = sketch8
pad4.Length = 1
pad4.Reversed = True

doc.recompute()
